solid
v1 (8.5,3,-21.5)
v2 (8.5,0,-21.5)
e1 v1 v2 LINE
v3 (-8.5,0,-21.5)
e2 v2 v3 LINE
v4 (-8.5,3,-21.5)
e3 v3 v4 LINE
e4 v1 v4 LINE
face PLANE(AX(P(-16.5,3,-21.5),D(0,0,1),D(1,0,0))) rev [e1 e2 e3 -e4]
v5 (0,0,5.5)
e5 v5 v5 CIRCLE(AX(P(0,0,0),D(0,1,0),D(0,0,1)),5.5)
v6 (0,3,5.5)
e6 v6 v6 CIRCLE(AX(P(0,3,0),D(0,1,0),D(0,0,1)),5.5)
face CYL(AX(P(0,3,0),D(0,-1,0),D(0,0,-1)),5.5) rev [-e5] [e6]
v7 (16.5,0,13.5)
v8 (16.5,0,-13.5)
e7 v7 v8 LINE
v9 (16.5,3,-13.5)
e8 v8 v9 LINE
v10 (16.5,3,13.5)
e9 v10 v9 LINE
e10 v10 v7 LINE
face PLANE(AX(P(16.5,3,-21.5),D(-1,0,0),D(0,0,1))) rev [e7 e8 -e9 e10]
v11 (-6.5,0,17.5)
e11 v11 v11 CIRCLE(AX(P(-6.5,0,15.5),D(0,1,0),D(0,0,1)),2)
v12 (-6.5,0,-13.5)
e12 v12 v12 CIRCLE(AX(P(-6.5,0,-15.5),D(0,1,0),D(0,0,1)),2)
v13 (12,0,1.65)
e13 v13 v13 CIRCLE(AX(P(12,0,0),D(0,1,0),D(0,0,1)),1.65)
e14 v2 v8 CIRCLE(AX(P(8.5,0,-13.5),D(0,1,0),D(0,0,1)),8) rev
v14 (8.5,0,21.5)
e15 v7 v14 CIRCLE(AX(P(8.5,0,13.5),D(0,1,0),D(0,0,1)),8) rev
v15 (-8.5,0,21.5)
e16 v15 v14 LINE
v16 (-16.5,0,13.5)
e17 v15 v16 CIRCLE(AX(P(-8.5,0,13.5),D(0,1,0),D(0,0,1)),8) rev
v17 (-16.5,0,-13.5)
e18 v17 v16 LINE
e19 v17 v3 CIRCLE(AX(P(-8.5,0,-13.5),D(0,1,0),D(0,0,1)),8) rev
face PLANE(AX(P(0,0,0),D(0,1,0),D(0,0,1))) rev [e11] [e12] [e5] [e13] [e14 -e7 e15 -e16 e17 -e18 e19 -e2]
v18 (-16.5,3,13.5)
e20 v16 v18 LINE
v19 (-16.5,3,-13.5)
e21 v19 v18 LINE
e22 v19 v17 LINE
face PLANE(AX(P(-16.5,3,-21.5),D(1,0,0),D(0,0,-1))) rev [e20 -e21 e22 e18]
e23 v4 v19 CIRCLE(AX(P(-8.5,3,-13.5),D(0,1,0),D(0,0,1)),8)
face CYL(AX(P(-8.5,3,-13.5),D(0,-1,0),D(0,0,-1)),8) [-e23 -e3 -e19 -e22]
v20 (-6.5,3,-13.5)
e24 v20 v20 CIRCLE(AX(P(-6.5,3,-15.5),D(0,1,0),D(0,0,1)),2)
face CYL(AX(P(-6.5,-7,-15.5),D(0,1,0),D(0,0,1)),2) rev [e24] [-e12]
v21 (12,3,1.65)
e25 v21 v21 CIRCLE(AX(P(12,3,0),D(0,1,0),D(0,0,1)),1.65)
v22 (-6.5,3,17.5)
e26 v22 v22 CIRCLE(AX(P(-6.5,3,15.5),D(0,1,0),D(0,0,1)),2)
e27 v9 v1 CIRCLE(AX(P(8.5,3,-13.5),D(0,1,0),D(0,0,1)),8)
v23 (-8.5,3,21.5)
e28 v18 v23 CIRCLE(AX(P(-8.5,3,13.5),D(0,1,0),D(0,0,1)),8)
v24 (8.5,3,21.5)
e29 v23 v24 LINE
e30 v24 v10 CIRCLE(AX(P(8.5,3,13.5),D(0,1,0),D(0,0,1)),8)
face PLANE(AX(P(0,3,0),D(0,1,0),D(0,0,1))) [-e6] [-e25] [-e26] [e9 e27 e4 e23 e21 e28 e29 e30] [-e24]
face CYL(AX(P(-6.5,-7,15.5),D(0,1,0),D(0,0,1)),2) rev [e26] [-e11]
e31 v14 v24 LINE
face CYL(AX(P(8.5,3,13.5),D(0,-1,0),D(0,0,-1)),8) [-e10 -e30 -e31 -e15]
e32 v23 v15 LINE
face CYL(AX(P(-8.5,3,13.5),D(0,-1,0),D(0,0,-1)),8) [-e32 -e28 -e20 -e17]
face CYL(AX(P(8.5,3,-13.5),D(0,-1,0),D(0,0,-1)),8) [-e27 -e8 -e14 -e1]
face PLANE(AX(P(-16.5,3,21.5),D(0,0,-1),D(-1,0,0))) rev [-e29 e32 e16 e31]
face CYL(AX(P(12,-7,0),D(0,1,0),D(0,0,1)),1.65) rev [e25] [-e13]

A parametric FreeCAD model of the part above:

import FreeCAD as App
import Part
import Sketcher

V = App.Vector
Q = App.Units.Quantity


def edges_at(feature, points):
    """Names of the edges that pass closest to the given points."""
    edges = feature.Shape.Edges
    near = lambda p: min(range(len(edges)), key=lambda i: edges[i].distToShape(Part.Vertex(*p))[0])
    return sorted({f"Edge{near(p) + 1}" for p in points})

doc = App.newDocument("Part")
body = doc.addObject("PartDesign::Body", "Body")

# Sketch on XZ plane
sketch1 = doc.addObject("Sketcher::SketchObject", "Sketch")
body.addObject(sketch1)
sketch1.AttachmentSupport = (doc.XZ_Plane, [""])
sketch1.MapMode = "FlatFace"
sketch1.addGeometry(Part.LineSegment(V(-16, -22, 0), V(-16, 22, 0)), False)
sketch1.addGeometry(Part.LineSegment(V(-16, 22, 0), V(16, 22, 0)), False)
sketch1.addGeometry(Part.LineSegment(V(16, 22, 0), V(16, -22, 0)), False)
sketch1.addGeometry(Part.LineSegment(V(16, -22, 0), V(-16, -22, 0)), False)
sketch1.addGeometry(Part.Circle(V(0, 0, 0), V(0, 0, 1), 6), False)
sketch1.addConstraint(Sketcher.Constraint("Coincident", 0, 2, 1, 1))
sketch1.addConstraint(Sketcher.Constraint("Coincident", 1, 2, 2, 1))
sketch1.addConstraint(Sketcher.Constraint("Coincident", 2, 2, 3, 1))
sketch1.addConstraint(Sketcher.Constraint("Coincident", 3, 2, 0, 1))
sketch1.addConstraint(Sketcher.Constraint("Vertical", 0))
sketch1.addConstraint(Sketcher.Constraint("Horizontal", 1))
sketch1.addConstraint(Sketcher.Constraint("Vertical", 2))
sketch1.addConstraint(Sketcher.Constraint("Horizontal", 3))
sketch1.addConstraint(Sketcher.Constraint("Coincident", 4, 3, -1, 1))
sketch1.addConstraint(Sketcher.Constraint("Symmetric", 0, 2, 2, 2, -1, 1))
sketch1.addConstraint(Sketcher.Constraint("Diameter", 4, Q("11 mm")))
sketch1.addConstraint(Sketcher.Constraint("DistanceX", 1, 1, 1, 2, Q("33 mm")))
sketch1.addConstraint(Sketcher.Constraint("DistanceY", 0, 1, 0, 2, Q("43 mm")))
pad1 = doc.addObject("PartDesign::Pad", "Pad")
body.addObject(pad1)
pad1.Profile = sketch1
pad1.Length = 3
pad1.Reversed = True

# Sketch on XZ plane
sketch2 = doc.addObject("Sketcher::SketchObject", "Sketch001")
body.addObject(sketch2)
sketch2.AttachmentSupport = (doc.XZ_Plane, [""])
sketch2.MapMode = "FlatFace"
sketch2.AttachmentOffset = App.Placement(V(0, 0, -3), App.Rotation())
sketch2.addGeometry(Part.Circle(V(-6.5, -15.5, 0), V(0, 0, 1), 2), False)
sketch2.addGeometry(Part.Circle(V(-6.5, 15.5, 0), V(0, 0, 1), 2), False)
sketch2.addGeometry(Part.Circle(V(12, 0, 0), V(0, 0, 1), 1.6), False)
sketch2.addConstraint(Sketcher.Constraint("Equal", 0, 1))
sketch2.addConstraint(Sketcher.Constraint("Symmetric", 0, 3, 1, 3, -1))
sketch2.addConstraint(Sketcher.Constraint("PointOnObject", 2, 3, -1))
sketch2.addConstraint(Sketcher.Constraint("Diameter", 0, Q("4 mm")))
sketch2.addConstraint(Sketcher.Constraint("Diameter", 2, Q("3.3 mm")))
sketch2.addConstraint(Sketcher.Constraint("DistanceX", -1, 1, 2, 3, Q("12 mm")))
sketch2.addConstraint(Sketcher.Constraint("DistanceY", 0, 3, 1, 3, Q("31 mm")))
sketch2.addConstraint(Sketcher.Constraint("DistanceX", 0, 3, -1, 1, Q("6.5 mm")))
pocket1 = doc.addObject("PartDesign::Pocket", "Pocket")
body.addObject(pocket1)
pocket1.Profile = sketch2
pocket1.Length = 10
pocket1.Reversed = True
doc.recompute()

fillet = doc.addObject("PartDesign::Fillet", "Fillet")
body.addObject(fillet)
fillet.Base = (pocket1, edges_at(pocket1, [
    (16.5, 1.5, 21.5),
    (-16.5, 1.5, 21.5),
    (-16.5, 1.5, -21.5),
    (16.5, 1.5, -21.5),
]))
fillet.Radius = 8

doc.recompute()
